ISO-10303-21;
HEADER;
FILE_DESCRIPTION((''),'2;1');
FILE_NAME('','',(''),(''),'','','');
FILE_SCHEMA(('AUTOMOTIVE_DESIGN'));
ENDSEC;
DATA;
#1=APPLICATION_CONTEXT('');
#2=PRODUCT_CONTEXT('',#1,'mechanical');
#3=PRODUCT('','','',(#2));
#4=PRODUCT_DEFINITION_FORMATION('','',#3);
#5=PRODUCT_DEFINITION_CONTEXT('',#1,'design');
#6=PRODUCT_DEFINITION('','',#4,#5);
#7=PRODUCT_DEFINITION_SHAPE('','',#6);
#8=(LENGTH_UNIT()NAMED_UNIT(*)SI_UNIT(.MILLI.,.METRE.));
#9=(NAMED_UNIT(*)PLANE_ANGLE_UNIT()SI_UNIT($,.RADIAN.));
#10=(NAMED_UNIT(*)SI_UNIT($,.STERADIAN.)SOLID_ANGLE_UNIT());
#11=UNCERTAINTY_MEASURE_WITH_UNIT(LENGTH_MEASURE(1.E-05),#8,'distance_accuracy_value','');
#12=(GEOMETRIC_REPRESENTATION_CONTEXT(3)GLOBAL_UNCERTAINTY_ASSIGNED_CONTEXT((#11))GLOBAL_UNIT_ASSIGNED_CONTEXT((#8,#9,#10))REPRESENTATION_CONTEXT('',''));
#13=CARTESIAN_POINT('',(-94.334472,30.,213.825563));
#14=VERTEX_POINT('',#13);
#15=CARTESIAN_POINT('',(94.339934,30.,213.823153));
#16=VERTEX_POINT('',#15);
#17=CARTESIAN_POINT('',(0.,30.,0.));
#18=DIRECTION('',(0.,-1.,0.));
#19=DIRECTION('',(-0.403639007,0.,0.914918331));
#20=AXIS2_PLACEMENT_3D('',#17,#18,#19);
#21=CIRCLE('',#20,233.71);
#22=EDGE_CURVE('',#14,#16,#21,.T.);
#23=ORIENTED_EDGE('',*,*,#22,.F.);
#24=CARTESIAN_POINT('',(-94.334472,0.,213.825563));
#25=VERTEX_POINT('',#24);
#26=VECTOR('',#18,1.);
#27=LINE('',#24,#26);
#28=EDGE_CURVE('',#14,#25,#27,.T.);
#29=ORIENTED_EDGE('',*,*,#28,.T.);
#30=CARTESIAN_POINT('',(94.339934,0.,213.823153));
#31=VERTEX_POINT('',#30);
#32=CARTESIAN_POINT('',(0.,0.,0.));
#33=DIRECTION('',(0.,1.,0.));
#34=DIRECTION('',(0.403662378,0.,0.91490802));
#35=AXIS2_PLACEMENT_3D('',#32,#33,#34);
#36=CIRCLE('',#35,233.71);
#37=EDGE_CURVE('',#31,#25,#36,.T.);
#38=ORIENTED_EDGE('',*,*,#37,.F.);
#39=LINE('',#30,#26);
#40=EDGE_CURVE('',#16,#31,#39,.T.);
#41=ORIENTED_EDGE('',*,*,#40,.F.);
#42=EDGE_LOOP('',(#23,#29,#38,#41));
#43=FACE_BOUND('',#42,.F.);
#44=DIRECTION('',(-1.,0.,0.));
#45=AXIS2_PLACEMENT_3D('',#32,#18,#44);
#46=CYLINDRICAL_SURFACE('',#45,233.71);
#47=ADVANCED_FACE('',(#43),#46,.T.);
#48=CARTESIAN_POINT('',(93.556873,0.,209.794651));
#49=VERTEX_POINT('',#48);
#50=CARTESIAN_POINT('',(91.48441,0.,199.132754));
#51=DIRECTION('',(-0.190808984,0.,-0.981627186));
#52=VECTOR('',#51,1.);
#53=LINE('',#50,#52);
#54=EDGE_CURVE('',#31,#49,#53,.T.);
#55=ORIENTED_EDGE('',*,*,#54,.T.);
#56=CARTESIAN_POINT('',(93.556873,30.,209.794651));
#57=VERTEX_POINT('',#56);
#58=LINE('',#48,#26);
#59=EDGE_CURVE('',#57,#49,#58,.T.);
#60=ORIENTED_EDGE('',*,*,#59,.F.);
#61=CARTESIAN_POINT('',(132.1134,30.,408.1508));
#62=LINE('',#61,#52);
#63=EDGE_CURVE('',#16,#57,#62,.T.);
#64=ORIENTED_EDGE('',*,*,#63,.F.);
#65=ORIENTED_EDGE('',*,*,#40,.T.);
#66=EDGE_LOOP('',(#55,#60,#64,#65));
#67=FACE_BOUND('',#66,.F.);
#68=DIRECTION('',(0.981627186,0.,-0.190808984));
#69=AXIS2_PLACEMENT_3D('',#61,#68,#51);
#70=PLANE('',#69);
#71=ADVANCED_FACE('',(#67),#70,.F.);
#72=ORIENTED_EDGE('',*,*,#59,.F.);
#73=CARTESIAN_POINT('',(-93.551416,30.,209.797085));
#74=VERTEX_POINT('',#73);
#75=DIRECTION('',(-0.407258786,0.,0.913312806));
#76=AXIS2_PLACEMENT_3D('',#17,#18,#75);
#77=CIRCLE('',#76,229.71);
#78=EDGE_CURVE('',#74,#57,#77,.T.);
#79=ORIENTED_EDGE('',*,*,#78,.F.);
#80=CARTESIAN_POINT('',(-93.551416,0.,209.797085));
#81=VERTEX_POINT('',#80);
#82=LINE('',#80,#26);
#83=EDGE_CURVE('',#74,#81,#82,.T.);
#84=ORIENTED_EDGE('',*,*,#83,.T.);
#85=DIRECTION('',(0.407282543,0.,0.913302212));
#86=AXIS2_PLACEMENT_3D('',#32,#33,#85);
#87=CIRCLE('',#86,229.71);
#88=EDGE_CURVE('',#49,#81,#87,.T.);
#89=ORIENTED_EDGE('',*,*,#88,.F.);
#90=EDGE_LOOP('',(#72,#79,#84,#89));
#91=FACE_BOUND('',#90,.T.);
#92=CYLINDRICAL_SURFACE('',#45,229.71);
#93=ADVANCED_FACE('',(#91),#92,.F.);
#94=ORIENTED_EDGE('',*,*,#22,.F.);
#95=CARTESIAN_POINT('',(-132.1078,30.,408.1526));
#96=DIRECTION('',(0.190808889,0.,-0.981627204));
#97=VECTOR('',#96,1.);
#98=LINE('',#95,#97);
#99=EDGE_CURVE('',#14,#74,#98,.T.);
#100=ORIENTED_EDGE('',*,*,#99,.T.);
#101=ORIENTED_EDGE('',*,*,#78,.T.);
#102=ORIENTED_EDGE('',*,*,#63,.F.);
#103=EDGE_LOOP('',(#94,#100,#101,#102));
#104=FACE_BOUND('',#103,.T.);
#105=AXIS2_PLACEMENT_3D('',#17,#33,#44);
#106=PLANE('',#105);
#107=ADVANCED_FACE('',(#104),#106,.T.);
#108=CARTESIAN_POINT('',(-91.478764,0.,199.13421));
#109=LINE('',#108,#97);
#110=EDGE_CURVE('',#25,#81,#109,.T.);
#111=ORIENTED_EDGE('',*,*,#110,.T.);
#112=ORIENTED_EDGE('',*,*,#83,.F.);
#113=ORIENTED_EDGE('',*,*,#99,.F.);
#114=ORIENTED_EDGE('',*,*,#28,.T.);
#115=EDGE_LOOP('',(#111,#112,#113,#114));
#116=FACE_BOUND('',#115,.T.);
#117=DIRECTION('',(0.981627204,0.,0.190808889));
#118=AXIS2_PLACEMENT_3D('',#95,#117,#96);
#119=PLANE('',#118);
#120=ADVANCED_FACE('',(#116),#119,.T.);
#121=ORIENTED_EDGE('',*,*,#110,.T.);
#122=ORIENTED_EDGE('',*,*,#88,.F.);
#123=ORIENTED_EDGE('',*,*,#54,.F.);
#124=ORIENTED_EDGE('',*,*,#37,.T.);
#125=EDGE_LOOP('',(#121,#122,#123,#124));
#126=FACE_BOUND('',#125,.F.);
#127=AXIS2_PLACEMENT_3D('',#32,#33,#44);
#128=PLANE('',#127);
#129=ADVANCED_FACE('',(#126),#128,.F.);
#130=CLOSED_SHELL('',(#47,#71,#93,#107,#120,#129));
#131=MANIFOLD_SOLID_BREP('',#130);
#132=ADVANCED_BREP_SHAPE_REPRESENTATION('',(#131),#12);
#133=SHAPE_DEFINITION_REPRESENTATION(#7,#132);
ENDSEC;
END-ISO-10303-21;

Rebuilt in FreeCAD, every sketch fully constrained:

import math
import FreeCAD as App
import Part
import Sketcher
Q = App.Units.Quantity

doc = App.newDocument("Part")
body = doc.addObject("PartDesign::Body", "Body")

sketch1 = body.newObject("Sketcher::SketchObject", "Sketch")
sketch1.AttachmentSupport = (doc.getObject("XZ_Plane"), [""])
sketch1.MapMode = "FlatFace"
sketch1.addGeometry([
    Part.Circle(App.Vector(0, 0, 0), App.Vector(0, 0, 1), 234),
    Part.Circle(App.Vector(0, 0, 0), App.Vector(0, 0, 1), 230),
], False)
sketch1.addConstraint([
    Sketcher.Constraint("Coincident", 0, 3, -1, 1),
    Sketcher.Constraint("Coincident", 1, 3, -1, 1),
    Sketcher.Constraint("Diameter", 0, 467.42),
    Sketcher.Constraint("Diameter", 1, 459.42),
])
pad1 = body.newObject("PartDesign::Pad", "Pad")
pad1.Profile = sketch1
pad1.Length = 30
pad1.Reversed = True

sketch2 = body.newObject("Sketcher::SketchObject", "Sketch001")
sketch2.AttachmentSupport = (doc.getObject("XZ_Plane"), [""])
sketch2.MapMode = "FlatFace"
sketch2.AttachmentOffset = App.Placement(App.Vector(0, 0, -30), App.Rotation())
sketch2.addGeometry([
    Part.LineSegment(App.Vector(-78, 128, 0), App.Vector(-132, 408, 0)),
    Part.ArcOfCircle(Part.Circle(App.Vector(0, 0, 0), App.Vector(0, 0, 1), 429), math.radians(72), math.radians(108)),
    Part.LineSegment(App.Vector(132, 408, 0), App.Vector(78, 128, 0)),
    Part.ArcOfCircle(Part.Circle(App.Vector(0, 0, 0), App.Vector(0, 0, 1), 150), math.radians(59), math.radians(121)),
], False)
sketch2.addConstraint([
    Sketcher.Constraint("Coincident", 0, 2, 1, 2),
    Sketcher.Constraint("Coincident", 1, 1, 2, 1),
    Sketcher.Constraint("Coincident", 2, 2, 3, 1),
    Sketcher.Constraint("Coincident", 3, 2, 0, 1),
    Sketcher.Constraint("Coincident", 1, 3, -1, 1),
    Sketcher.Constraint("Coincident", 3, 3, -1, 1),
    Sketcher.Constraint("Radius", 1, 429.0),
    Sketcher.Constraint("Radius", 3, 150.07),
    Sketcher.Constraint("Angle", 0, Q("101 deg")),
    Sketcher.Constraint("Angle", 2, Q("-101 deg")),
    Sketcher.Constraint("Distance", 0, 285.015),
    Sketcher.Constraint("DistanceY", -1, 1, 2, 2, 128.371),
])
pocket1 = body.newObject("PartDesign::Pocket", "Pocket")
pocket1.Profile = sketch2
pocket1.Type = "ThroughAll"
pocket1.Reversed = True

doc.recompute()
